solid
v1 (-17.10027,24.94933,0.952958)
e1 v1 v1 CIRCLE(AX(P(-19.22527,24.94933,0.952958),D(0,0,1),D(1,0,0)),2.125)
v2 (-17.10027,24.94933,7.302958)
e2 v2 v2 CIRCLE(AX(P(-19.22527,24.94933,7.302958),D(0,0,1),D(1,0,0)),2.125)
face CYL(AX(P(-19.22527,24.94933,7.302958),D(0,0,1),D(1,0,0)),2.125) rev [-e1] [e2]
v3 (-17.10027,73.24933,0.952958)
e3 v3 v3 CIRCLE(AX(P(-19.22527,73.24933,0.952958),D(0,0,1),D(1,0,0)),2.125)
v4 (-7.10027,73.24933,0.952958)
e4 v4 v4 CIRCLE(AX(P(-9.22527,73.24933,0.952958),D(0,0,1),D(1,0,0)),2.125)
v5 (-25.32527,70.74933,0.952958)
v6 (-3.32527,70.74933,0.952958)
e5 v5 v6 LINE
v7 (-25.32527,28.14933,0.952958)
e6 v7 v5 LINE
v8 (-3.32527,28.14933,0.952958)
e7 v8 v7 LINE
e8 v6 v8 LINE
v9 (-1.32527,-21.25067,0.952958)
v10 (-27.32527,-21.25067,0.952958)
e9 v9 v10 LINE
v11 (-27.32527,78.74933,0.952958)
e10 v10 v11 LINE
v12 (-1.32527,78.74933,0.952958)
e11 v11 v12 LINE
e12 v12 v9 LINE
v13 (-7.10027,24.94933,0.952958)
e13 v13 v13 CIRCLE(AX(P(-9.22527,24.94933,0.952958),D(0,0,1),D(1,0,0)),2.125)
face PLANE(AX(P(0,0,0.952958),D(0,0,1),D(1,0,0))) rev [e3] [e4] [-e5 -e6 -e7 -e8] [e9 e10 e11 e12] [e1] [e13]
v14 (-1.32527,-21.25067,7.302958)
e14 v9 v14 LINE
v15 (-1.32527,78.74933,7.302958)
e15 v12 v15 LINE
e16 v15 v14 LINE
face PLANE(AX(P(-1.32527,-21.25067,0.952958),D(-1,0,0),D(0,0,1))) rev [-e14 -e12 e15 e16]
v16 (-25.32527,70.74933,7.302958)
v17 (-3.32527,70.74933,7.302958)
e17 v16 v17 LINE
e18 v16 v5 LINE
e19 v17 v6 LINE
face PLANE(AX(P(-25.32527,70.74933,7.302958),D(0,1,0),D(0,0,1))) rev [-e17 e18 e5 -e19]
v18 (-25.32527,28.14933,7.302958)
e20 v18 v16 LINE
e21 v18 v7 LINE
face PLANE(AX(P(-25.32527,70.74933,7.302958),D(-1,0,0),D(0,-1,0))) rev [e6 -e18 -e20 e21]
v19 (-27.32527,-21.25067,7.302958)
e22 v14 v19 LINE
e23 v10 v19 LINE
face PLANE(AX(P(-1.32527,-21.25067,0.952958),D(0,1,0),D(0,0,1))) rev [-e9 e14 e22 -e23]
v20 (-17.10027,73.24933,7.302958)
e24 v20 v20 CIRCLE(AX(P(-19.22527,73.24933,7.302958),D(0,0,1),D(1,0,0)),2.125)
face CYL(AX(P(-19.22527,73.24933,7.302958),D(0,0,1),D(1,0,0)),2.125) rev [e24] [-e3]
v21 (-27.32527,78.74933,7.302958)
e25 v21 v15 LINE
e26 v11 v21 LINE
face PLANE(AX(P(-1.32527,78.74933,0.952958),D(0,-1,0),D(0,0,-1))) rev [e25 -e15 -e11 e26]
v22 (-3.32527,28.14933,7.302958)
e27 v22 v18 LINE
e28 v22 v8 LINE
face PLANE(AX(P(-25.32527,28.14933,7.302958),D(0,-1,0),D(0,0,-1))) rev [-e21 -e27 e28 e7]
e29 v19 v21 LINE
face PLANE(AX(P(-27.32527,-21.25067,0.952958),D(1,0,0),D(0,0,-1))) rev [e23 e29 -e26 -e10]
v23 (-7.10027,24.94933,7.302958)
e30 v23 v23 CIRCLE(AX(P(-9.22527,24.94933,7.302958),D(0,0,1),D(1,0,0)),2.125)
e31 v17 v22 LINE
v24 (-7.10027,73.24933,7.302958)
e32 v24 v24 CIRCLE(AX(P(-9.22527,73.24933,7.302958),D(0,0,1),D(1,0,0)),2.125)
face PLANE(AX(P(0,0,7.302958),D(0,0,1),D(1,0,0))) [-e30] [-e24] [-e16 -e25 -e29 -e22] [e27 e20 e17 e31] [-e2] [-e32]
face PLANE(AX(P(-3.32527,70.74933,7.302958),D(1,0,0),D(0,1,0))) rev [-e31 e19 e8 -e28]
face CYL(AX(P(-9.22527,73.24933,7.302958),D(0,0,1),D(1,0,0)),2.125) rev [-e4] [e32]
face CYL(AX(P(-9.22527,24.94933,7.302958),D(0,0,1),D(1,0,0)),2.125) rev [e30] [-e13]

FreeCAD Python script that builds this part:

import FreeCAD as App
import Part
import Sketcher

V = App.Vector

doc = App.newDocument("Part")
body = doc.addObject("PartDesign::Body", "Body")

sketch1 = body.newObject("Sketcher::SketchObject", "Sketch")
sketch1.AttachmentSupport = (doc.getObject("XY_Plane"), [""])
sketch1.MapMode = "FlatFace"
sketch1.AttachmentOffset = App.Placement(V(0, 0, 7.302958), App.Rotation())
sketch1.addGeometry([
    Part.LineSegment(V(-1.32527, 78.74933, 0), V(-1.32527, -21.25067, 0)),
    Part.LineSegment(V(-1.32527, -21.25067, 0), V(-27.32527, -21.25067, 0)),
    Part.LineSegment(V(-27.32527, -21.25067, 0), V(-27.32527, 78.74933, 0)),
    Part.LineSegment(V(-27.32527, 78.74933, 0), V(-1.32527, 78.74933, 0)),
], False)
sketch1.addConstraint([
    Sketcher.Constraint("Coincident", 0, 2, 1, 1),
    Sketcher.Constraint("Coincident", 1, 2, 2, 1),
    Sketcher.Constraint("Coincident", 2, 2, 3, 1),
    Sketcher.Constraint("Coincident", 3, 2, 0, 1),
    Sketcher.Constraint("Vertical", 0),
    Sketcher.Constraint("Horizontal", 1),
    Sketcher.Constraint("Vertical", 2),
    Sketcher.Constraint("Horizontal", 3),
    Sketcher.Constraint("DistanceX", 1, 2, 1, 1, 26.0),
    Sketcher.Constraint("DistanceY", 0, 2, 0, 1, 100.0),
    Sketcher.Constraint("DistanceX", 0, 2, -1, 1, 1.32527),
    Sketcher.Constraint("DistanceY", 0, 2, -1, 1, 21.25067),
])
pad1 = body.newObject("PartDesign::Pad", "Pad")
pad1.Profile = sketch1
pad1.Length = 6.35
pad1.Reversed = True

sketch2 = body.newObject("Sketcher::SketchObject", "Sketch001")
sketch2.AttachmentSupport = (doc.getObject("XY_Plane"), [""])
sketch2.MapMode = "FlatFace"
sketch2.AttachmentOffset = App.Placement(V(0, 0, 0.952958), App.Rotation())
sketch2.addGeometry([
    Part.LineSegment(V(-3.32527, 70.74933, 0), V(-3.32527, 28.14933, 0)),
    Part.LineSegment(V(-3.32527, 28.14933, 0), V(-25.32527, 28.14933, 0)),
    Part.LineSegment(V(-25.32527, 28.14933, 0), V(-25.32527, 70.74933, 0)),
    Part.LineSegment(V(-25.32527, 70.74933, 0), V(-3.32527, 70.74933, 0)),
], False)
sketch2.addConstraint([
    Sketcher.Constraint("Coincident", 0, 2, 1, 1),
    Sketcher.Constraint("Coincident", 1, 2, 2, 1),
    Sketcher.Constraint("Coincident", 2, 2, 3, 1),
    Sketcher.Constraint("Coincident", 3, 2, 0, 1),
    Sketcher.Constraint("Vertical", 0),
    Sketcher.Constraint("Horizontal", 1),
    Sketcher.Constraint("Vertical", 2),
    Sketcher.Constraint("Horizontal", 3),
    Sketcher.Constraint("DistanceX", 1, 2, 1, 1, 22.0),
    Sketcher.Constraint("DistanceY", 0, 2, 0, 1, 42.6),
    Sketcher.Constraint("DistanceX", 0, 2, -1, 1, 3.32527),
    Sketcher.Constraint("DistanceY", -1, 1, 0, 2, 28.14933),
])
pocket1 = body.newObject("PartDesign::Pocket", "Pocket")
pocket1.Profile = sketch2
pocket1.Type = "ThroughAll"
pocket1.Reversed = True

sketch3 = body.newObject("Sketcher::SketchObject", "Sketch002")
sketch3.AttachmentSupport = (doc.getObject("XY_Plane"), [""])
sketch3.MapMode = "FlatFace"
sketch3.AttachmentOffset = App.Placement(V(0, 0, 7.302958), App.Rotation())
sketch3.addGeometry([
    Part.Circle(V(-19.22527, 73.24933, 0), V(0, 0, 1), 2.125),
    Part.Circle(V(-9.22527, 73.24933, 0), V(0, 0, 1), 2.125),
    Part.Circle(V(-19.22527, 24.94933, 0), V(0, 0, 1), 2.125),
    Part.Circle(V(-9.22527, 24.94933, 0), V(0, 0, 1), 2.125),
], False)
sketch3.addConstraint([
    Sketcher.Constraint("Equal", 0, 1),
    Sketcher.Constraint("Equal", 1, 2),
    Sketcher.Constraint("Equal", 2, 3),
    Sketcher.Constraint("Horizontal", 0, 3, 1, 3),
    Sketcher.Constraint("Horizontal", 2, 3, 3, 3),
    Sketcher.Constraint("Vertical", 0, 3, 2, 3),
    Sketcher.Constraint("Vertical", 1, 3, 3, 3),
    Sketcher.Constraint("Diameter", 0, 4.25),
    Sketcher.Constraint("DistanceX", 0, 3, 1, 3, 10.0),
    Sketcher.Constraint("DistanceY", 2, 3, 0, 3, 48.3),
    Sketcher.Constraint("DistanceX", 0, 3, -1, 1, 19.22527),
    Sketcher.Constraint("DistanceY", -1, 1, 0, 3, 73.24933),
])
doc.recompute()
hole = body.newObject("PartDesign::Hole", "Hole")
hole.Profile = sketch3
hole.ThreadType = "None"
hole.Diameter = 4.25
hole.DepthType = "ThroughAll"

doc.recompute()
